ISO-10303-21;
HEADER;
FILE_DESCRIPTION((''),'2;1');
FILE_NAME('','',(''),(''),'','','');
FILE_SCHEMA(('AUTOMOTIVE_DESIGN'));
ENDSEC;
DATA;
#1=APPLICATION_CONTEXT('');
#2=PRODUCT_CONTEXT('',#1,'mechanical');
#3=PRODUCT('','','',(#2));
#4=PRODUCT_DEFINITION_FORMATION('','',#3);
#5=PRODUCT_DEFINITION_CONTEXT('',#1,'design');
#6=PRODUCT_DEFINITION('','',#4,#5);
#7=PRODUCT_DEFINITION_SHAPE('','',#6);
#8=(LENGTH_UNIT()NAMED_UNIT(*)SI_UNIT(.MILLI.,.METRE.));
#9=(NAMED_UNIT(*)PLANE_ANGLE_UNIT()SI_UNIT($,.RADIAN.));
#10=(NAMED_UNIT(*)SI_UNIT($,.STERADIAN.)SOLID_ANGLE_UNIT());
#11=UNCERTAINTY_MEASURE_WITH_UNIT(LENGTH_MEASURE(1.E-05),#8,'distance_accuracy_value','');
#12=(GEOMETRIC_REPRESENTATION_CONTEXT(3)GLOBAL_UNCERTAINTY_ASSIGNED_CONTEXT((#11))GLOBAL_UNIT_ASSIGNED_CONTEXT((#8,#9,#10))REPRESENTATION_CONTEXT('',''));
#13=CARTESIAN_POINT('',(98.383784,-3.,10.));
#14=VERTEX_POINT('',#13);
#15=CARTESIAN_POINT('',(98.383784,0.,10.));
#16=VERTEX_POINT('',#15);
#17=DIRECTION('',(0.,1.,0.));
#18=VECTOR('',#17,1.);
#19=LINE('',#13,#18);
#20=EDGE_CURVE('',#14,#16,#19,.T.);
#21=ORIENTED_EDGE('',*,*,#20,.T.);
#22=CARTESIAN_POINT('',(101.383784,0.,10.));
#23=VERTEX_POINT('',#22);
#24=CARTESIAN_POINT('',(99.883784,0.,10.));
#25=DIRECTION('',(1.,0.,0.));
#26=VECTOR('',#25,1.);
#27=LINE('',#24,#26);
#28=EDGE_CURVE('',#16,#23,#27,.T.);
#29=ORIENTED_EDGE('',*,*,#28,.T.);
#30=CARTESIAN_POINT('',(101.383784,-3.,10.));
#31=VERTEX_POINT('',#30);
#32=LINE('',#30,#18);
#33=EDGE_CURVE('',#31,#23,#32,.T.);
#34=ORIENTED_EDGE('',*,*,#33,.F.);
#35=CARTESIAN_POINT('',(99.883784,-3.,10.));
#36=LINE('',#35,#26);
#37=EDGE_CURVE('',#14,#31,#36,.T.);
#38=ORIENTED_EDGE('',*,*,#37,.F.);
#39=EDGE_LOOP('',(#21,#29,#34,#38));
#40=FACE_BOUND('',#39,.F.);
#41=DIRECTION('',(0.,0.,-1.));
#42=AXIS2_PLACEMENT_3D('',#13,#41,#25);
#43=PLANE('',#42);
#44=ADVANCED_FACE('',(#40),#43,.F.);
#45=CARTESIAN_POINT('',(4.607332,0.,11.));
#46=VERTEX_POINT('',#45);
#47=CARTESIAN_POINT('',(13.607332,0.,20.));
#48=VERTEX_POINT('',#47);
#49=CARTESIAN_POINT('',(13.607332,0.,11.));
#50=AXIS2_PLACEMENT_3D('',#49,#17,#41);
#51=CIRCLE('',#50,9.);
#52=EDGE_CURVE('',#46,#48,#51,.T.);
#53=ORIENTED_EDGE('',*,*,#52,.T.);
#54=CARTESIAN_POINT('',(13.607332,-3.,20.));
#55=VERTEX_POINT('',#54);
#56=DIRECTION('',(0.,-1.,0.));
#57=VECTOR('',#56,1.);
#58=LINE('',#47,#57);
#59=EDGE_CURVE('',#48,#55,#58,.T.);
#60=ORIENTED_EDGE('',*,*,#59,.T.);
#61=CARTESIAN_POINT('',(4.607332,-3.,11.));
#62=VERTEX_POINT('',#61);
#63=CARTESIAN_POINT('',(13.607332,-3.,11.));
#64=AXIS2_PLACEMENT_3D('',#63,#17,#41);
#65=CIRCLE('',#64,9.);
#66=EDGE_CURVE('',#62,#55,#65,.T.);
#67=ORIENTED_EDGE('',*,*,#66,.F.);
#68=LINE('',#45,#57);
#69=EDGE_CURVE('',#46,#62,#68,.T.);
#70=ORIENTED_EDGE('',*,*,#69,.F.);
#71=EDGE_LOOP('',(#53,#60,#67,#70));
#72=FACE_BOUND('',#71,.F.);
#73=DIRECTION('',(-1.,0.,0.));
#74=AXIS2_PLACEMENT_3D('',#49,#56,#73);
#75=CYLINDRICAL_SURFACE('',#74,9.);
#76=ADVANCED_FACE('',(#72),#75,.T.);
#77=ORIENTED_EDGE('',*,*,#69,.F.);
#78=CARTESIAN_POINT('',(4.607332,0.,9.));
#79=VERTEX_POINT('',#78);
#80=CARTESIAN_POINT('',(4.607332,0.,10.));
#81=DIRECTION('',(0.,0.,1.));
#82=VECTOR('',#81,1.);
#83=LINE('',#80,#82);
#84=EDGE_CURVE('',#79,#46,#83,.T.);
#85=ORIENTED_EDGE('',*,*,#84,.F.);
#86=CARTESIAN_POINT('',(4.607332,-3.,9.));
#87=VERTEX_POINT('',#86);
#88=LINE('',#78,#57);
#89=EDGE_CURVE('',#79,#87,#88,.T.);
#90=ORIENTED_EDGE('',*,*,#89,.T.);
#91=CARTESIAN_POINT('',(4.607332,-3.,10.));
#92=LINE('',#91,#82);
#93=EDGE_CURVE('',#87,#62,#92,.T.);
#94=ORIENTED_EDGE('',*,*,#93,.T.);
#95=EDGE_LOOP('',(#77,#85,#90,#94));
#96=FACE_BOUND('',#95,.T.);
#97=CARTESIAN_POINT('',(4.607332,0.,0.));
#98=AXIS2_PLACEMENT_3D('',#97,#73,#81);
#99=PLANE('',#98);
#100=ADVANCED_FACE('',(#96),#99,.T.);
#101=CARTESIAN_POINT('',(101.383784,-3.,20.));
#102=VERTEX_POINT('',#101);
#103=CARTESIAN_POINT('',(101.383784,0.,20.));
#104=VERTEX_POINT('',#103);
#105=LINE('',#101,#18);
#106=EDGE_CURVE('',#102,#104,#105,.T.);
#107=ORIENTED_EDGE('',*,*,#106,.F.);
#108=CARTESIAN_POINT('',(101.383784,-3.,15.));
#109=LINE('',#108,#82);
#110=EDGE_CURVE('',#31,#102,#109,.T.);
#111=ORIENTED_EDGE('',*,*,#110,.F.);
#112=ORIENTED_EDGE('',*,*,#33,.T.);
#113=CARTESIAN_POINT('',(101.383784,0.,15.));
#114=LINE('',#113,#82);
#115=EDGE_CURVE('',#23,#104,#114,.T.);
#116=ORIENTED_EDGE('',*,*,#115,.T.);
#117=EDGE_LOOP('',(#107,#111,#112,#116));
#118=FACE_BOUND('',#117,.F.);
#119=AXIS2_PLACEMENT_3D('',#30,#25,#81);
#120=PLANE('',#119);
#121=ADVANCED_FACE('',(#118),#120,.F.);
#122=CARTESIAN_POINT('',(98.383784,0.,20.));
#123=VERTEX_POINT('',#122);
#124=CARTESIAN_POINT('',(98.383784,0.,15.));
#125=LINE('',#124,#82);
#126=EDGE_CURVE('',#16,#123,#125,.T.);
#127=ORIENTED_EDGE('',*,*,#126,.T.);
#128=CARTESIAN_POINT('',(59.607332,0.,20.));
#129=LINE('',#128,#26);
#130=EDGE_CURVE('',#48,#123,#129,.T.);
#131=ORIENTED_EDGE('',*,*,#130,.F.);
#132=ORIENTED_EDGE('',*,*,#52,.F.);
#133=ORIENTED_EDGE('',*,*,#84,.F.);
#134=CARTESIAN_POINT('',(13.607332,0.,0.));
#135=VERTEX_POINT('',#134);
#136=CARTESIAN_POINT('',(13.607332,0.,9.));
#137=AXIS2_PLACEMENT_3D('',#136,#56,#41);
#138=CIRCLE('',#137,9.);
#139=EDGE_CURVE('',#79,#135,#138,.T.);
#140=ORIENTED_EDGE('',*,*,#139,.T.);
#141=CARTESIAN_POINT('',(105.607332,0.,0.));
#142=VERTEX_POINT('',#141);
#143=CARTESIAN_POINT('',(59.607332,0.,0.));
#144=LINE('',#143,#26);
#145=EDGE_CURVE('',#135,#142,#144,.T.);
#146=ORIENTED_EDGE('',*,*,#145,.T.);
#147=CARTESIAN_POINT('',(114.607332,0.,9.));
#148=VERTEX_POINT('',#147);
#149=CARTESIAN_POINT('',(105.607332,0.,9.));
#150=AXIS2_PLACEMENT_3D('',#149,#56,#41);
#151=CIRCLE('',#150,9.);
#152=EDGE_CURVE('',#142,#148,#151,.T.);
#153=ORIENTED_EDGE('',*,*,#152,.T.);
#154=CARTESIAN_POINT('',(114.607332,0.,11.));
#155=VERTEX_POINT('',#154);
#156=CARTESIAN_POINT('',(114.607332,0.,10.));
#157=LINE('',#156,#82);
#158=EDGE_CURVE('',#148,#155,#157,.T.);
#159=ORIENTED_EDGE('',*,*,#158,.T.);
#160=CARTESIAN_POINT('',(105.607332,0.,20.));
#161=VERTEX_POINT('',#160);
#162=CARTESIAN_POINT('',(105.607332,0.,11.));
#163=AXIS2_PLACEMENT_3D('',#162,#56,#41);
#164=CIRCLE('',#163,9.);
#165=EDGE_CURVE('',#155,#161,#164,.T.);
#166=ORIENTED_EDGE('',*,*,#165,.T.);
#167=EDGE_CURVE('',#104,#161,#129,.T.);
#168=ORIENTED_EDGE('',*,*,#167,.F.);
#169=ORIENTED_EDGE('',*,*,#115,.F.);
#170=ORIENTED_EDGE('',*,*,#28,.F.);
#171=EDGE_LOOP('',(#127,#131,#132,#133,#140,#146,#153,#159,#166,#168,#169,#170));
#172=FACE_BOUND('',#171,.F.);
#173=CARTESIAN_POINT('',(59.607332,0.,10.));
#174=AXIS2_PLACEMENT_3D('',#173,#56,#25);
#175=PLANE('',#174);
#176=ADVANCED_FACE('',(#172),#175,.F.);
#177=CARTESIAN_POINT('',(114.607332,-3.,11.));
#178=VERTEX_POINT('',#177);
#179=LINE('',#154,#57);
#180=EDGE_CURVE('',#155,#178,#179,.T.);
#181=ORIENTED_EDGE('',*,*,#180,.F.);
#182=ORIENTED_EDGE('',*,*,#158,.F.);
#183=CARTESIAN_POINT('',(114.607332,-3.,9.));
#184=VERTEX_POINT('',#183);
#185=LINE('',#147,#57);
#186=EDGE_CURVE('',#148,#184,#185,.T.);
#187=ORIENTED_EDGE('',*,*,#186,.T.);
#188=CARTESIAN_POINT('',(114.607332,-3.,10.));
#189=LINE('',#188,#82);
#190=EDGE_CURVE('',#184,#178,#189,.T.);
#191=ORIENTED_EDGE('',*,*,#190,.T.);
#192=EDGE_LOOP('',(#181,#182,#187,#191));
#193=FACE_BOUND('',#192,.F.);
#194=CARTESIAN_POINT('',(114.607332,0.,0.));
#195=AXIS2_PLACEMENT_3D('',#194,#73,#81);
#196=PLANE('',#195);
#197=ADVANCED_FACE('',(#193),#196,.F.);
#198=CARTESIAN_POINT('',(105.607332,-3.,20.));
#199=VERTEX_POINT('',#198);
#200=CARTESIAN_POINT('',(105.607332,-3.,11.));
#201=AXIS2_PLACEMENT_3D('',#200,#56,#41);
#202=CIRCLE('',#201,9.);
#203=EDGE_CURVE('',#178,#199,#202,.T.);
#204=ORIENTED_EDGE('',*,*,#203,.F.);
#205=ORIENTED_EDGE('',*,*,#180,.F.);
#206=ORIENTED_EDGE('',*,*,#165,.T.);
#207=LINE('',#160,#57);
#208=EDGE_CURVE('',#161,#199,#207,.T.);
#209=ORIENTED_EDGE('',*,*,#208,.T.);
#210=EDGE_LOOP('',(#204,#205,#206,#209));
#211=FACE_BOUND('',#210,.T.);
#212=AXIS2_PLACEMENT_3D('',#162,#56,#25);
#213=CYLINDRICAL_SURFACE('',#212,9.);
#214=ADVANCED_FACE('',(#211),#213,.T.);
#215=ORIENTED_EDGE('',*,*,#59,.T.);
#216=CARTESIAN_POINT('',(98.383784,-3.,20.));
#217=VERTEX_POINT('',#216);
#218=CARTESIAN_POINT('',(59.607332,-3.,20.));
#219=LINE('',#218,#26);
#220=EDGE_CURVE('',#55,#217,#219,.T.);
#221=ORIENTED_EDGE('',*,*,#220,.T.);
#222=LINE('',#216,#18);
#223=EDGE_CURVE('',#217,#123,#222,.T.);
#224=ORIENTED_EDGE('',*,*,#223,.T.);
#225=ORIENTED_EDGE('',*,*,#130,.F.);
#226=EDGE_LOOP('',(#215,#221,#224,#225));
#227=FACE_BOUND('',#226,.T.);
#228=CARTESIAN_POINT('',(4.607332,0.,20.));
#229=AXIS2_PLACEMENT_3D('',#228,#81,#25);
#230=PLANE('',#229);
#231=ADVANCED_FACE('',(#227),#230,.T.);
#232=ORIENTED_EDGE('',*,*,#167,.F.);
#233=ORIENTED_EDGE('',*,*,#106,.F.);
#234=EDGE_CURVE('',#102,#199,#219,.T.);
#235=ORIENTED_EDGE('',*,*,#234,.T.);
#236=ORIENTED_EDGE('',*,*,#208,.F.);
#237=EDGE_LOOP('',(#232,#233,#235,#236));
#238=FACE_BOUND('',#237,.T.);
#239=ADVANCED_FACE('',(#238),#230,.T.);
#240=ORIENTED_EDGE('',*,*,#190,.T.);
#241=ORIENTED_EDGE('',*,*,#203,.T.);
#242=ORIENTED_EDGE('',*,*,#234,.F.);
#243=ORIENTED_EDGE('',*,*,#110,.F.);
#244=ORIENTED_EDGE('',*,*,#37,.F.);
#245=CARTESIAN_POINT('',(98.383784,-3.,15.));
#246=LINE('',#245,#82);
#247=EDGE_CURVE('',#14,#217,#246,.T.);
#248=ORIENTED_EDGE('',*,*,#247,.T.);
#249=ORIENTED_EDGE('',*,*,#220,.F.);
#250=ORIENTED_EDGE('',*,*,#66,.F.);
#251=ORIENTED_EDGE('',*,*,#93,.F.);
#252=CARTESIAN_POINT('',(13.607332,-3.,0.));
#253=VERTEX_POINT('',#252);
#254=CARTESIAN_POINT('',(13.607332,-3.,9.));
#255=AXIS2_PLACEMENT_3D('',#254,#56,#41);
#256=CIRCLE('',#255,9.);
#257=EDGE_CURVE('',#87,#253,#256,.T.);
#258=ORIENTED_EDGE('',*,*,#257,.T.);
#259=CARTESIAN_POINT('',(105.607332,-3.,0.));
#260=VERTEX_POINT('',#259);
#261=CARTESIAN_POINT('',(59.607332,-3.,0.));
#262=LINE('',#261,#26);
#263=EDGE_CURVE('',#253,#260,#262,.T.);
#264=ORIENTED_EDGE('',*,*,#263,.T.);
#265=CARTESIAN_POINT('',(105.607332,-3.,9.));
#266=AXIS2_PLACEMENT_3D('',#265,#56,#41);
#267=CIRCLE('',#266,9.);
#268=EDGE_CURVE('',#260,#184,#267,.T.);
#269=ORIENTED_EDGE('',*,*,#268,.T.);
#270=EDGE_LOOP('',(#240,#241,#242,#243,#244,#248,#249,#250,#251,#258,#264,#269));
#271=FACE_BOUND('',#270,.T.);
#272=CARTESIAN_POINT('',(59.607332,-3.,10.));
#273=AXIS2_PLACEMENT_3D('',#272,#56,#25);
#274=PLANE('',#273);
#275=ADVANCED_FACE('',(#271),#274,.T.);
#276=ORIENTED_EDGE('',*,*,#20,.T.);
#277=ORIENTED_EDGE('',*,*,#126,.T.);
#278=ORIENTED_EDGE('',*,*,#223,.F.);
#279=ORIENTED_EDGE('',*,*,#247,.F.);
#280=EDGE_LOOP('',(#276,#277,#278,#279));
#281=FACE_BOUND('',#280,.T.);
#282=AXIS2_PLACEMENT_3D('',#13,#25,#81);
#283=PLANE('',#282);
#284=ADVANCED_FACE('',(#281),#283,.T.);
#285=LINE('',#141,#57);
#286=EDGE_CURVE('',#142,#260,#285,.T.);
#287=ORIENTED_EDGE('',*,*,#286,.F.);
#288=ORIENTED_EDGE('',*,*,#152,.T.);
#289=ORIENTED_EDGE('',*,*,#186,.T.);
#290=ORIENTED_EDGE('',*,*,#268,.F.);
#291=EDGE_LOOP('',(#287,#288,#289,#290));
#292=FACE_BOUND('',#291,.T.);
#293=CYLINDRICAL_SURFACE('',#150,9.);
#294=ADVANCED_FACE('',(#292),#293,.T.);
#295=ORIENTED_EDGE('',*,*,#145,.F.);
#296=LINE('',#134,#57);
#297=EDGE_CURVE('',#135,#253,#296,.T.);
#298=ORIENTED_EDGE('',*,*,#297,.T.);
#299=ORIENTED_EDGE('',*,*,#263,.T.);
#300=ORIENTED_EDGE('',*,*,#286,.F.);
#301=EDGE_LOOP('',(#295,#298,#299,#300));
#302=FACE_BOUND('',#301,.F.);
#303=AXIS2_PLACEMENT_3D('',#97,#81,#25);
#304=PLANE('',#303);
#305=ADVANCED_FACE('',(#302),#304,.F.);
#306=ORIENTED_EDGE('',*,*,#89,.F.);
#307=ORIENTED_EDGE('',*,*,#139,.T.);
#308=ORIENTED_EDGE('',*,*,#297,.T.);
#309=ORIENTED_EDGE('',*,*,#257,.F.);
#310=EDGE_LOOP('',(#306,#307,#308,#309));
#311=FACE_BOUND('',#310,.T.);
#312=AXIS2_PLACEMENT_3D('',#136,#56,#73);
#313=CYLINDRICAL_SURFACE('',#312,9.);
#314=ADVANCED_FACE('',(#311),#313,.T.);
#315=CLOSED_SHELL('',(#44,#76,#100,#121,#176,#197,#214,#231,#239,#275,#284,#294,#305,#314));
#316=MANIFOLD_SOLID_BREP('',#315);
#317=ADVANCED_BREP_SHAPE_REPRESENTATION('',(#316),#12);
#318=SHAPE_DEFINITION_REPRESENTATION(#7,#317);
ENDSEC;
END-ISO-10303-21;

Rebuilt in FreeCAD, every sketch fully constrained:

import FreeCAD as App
import Part
import Sketcher
Q = App.Units.Quantity


def edges_at(feature, points):
    """Names of the edges that pass closest to the given points."""
    edges = feature.Shape.Edges
    near = lambda p: min(range(len(edges)), key=lambda i: edges[i].distToShape(Part.Vertex(*p))[0])
    return sorted({f"Edge{near(p) + 1}" for p in points})

doc = App.newDocument("Part")
body = doc.addObject("PartDesign::Body", "Body")

# Sketch on XZ plane
sketch1 = body.newObject("Sketcher::SketchObject", "Sketch")
sketch1.AttachmentSupport = (doc.getObject("XZ_Plane"), [""])
sketch1.MapMode = "FlatFace"
sketch1.addGeometry([
    Part.LineSegment(App.Vector(5, 20, 0), App.Vector(5, 0, 0)),
    Part.LineSegment(App.Vector(5, 0, 0), App.Vector(115, 0, 0)),
    Part.LineSegment(App.Vector(115, 0, 0), App.Vector(115, 20, 0)),
    Part.LineSegment(App.Vector(115, 20, 0), App.Vector(5, 20, 0)),
], False)
sketch1.addConstraint([
    Sketcher.Constraint("Coincident", 0, 2, 1, 1),
    Sketcher.Constraint("Coincident", 1, 2, 2, 1),
    Sketcher.Constraint("Coincident", 2, 2, 3, 1),
    Sketcher.Constraint("Coincident", 3, 2, 0, 1),
    Sketcher.Constraint("Vertical", 0),
    Sketcher.Constraint("Horizontal", 1),
    Sketcher.Constraint("Vertical", 2),
    Sketcher.Constraint("Horizontal", 3),
    Sketcher.Constraint("PointOnObject", 0, 2, -1),
    Sketcher.Constraint("DistanceX", 1, 1, 1, 2, Q("110 mm")),
    Sketcher.Constraint("DistanceY", 0, 2, 0, 1, Q("20 mm")),
    Sketcher.Constraint("DistanceX", -1, 1, 1, 2, Q("114.607332 mm")),
])
pad1 = body.newObject("PartDesign::Pad", "Pad")
pad1.Profile = sketch1
pad1.Length = 3
doc.recompute()

fillet = body.newObject("PartDesign::Fillet", "Fillet")
fillet.Base = (pad1, edges_at(pad1, [
    (4.607, -1.5, 20),
    (4.607, -1.5, 0),
    (114.607, -1.5, 20),
    (114.607, -1.5, 0),
]))
fillet.Radius = 9

# Sketch on XZ plane
sketch2 = body.newObject("Sketcher::SketchObject", "Sketch001")
sketch2.AttachmentSupport = (doc.getObject("XZ_Plane"), [""])
sketch2.MapMode = "FlatFace"
sketch2.AttachmentOffset = App.Placement(App.Vector(0, 0, 3), App.Rotation())
sketch2.addGeometry([
    Part.LineSegment(App.Vector(98.4, 20, 0), App.Vector(98.4, 10, 0)),
    Part.LineSegment(App.Vector(98.4, 10, 0), App.Vector(101.4, 10, 0)),
    Part.LineSegment(App.Vector(101.4, 10, 0), App.Vector(101.4, 20, 0)),
    Part.LineSegment(App.Vector(101.4, 20, 0), App.Vector(98.4, 20, 0)),
], False)
sketch2.addConstraint([
    Sketcher.Constraint("Coincident", 0, 2, 1, 1),
    Sketcher.Constraint("Coincident", 1, 2, 2, 1),
    Sketcher.Constraint("Coincident", 2, 2, 3, 1),
    Sketcher.Constraint("Coincident", 3, 2, 0, 1),
    Sketcher.Constraint("Vertical", 0),
    Sketcher.Constraint("Horizontal", 1),
    Sketcher.Constraint("Vertical", 2),
    Sketcher.Constraint("Horizontal", 3),
    Sketcher.Constraint("DistanceX", 1, 1, 1, 2, Q("3 mm")),
    Sketcher.Constraint("DistanceY", 0, 2, 0, 1, Q("10 mm")),
    Sketcher.Constraint("DistanceY", -1, 1, 0, 2, Q("10 mm")),
    Sketcher.Constraint("DistanceX", -1, 1, 0, 2, Q("98.383784 mm")),
])
pocket1 = body.newObject("PartDesign::Pocket", "Pocket")
pocket1.Profile = sketch2
pocket1.Length = 3

doc.recompute()
